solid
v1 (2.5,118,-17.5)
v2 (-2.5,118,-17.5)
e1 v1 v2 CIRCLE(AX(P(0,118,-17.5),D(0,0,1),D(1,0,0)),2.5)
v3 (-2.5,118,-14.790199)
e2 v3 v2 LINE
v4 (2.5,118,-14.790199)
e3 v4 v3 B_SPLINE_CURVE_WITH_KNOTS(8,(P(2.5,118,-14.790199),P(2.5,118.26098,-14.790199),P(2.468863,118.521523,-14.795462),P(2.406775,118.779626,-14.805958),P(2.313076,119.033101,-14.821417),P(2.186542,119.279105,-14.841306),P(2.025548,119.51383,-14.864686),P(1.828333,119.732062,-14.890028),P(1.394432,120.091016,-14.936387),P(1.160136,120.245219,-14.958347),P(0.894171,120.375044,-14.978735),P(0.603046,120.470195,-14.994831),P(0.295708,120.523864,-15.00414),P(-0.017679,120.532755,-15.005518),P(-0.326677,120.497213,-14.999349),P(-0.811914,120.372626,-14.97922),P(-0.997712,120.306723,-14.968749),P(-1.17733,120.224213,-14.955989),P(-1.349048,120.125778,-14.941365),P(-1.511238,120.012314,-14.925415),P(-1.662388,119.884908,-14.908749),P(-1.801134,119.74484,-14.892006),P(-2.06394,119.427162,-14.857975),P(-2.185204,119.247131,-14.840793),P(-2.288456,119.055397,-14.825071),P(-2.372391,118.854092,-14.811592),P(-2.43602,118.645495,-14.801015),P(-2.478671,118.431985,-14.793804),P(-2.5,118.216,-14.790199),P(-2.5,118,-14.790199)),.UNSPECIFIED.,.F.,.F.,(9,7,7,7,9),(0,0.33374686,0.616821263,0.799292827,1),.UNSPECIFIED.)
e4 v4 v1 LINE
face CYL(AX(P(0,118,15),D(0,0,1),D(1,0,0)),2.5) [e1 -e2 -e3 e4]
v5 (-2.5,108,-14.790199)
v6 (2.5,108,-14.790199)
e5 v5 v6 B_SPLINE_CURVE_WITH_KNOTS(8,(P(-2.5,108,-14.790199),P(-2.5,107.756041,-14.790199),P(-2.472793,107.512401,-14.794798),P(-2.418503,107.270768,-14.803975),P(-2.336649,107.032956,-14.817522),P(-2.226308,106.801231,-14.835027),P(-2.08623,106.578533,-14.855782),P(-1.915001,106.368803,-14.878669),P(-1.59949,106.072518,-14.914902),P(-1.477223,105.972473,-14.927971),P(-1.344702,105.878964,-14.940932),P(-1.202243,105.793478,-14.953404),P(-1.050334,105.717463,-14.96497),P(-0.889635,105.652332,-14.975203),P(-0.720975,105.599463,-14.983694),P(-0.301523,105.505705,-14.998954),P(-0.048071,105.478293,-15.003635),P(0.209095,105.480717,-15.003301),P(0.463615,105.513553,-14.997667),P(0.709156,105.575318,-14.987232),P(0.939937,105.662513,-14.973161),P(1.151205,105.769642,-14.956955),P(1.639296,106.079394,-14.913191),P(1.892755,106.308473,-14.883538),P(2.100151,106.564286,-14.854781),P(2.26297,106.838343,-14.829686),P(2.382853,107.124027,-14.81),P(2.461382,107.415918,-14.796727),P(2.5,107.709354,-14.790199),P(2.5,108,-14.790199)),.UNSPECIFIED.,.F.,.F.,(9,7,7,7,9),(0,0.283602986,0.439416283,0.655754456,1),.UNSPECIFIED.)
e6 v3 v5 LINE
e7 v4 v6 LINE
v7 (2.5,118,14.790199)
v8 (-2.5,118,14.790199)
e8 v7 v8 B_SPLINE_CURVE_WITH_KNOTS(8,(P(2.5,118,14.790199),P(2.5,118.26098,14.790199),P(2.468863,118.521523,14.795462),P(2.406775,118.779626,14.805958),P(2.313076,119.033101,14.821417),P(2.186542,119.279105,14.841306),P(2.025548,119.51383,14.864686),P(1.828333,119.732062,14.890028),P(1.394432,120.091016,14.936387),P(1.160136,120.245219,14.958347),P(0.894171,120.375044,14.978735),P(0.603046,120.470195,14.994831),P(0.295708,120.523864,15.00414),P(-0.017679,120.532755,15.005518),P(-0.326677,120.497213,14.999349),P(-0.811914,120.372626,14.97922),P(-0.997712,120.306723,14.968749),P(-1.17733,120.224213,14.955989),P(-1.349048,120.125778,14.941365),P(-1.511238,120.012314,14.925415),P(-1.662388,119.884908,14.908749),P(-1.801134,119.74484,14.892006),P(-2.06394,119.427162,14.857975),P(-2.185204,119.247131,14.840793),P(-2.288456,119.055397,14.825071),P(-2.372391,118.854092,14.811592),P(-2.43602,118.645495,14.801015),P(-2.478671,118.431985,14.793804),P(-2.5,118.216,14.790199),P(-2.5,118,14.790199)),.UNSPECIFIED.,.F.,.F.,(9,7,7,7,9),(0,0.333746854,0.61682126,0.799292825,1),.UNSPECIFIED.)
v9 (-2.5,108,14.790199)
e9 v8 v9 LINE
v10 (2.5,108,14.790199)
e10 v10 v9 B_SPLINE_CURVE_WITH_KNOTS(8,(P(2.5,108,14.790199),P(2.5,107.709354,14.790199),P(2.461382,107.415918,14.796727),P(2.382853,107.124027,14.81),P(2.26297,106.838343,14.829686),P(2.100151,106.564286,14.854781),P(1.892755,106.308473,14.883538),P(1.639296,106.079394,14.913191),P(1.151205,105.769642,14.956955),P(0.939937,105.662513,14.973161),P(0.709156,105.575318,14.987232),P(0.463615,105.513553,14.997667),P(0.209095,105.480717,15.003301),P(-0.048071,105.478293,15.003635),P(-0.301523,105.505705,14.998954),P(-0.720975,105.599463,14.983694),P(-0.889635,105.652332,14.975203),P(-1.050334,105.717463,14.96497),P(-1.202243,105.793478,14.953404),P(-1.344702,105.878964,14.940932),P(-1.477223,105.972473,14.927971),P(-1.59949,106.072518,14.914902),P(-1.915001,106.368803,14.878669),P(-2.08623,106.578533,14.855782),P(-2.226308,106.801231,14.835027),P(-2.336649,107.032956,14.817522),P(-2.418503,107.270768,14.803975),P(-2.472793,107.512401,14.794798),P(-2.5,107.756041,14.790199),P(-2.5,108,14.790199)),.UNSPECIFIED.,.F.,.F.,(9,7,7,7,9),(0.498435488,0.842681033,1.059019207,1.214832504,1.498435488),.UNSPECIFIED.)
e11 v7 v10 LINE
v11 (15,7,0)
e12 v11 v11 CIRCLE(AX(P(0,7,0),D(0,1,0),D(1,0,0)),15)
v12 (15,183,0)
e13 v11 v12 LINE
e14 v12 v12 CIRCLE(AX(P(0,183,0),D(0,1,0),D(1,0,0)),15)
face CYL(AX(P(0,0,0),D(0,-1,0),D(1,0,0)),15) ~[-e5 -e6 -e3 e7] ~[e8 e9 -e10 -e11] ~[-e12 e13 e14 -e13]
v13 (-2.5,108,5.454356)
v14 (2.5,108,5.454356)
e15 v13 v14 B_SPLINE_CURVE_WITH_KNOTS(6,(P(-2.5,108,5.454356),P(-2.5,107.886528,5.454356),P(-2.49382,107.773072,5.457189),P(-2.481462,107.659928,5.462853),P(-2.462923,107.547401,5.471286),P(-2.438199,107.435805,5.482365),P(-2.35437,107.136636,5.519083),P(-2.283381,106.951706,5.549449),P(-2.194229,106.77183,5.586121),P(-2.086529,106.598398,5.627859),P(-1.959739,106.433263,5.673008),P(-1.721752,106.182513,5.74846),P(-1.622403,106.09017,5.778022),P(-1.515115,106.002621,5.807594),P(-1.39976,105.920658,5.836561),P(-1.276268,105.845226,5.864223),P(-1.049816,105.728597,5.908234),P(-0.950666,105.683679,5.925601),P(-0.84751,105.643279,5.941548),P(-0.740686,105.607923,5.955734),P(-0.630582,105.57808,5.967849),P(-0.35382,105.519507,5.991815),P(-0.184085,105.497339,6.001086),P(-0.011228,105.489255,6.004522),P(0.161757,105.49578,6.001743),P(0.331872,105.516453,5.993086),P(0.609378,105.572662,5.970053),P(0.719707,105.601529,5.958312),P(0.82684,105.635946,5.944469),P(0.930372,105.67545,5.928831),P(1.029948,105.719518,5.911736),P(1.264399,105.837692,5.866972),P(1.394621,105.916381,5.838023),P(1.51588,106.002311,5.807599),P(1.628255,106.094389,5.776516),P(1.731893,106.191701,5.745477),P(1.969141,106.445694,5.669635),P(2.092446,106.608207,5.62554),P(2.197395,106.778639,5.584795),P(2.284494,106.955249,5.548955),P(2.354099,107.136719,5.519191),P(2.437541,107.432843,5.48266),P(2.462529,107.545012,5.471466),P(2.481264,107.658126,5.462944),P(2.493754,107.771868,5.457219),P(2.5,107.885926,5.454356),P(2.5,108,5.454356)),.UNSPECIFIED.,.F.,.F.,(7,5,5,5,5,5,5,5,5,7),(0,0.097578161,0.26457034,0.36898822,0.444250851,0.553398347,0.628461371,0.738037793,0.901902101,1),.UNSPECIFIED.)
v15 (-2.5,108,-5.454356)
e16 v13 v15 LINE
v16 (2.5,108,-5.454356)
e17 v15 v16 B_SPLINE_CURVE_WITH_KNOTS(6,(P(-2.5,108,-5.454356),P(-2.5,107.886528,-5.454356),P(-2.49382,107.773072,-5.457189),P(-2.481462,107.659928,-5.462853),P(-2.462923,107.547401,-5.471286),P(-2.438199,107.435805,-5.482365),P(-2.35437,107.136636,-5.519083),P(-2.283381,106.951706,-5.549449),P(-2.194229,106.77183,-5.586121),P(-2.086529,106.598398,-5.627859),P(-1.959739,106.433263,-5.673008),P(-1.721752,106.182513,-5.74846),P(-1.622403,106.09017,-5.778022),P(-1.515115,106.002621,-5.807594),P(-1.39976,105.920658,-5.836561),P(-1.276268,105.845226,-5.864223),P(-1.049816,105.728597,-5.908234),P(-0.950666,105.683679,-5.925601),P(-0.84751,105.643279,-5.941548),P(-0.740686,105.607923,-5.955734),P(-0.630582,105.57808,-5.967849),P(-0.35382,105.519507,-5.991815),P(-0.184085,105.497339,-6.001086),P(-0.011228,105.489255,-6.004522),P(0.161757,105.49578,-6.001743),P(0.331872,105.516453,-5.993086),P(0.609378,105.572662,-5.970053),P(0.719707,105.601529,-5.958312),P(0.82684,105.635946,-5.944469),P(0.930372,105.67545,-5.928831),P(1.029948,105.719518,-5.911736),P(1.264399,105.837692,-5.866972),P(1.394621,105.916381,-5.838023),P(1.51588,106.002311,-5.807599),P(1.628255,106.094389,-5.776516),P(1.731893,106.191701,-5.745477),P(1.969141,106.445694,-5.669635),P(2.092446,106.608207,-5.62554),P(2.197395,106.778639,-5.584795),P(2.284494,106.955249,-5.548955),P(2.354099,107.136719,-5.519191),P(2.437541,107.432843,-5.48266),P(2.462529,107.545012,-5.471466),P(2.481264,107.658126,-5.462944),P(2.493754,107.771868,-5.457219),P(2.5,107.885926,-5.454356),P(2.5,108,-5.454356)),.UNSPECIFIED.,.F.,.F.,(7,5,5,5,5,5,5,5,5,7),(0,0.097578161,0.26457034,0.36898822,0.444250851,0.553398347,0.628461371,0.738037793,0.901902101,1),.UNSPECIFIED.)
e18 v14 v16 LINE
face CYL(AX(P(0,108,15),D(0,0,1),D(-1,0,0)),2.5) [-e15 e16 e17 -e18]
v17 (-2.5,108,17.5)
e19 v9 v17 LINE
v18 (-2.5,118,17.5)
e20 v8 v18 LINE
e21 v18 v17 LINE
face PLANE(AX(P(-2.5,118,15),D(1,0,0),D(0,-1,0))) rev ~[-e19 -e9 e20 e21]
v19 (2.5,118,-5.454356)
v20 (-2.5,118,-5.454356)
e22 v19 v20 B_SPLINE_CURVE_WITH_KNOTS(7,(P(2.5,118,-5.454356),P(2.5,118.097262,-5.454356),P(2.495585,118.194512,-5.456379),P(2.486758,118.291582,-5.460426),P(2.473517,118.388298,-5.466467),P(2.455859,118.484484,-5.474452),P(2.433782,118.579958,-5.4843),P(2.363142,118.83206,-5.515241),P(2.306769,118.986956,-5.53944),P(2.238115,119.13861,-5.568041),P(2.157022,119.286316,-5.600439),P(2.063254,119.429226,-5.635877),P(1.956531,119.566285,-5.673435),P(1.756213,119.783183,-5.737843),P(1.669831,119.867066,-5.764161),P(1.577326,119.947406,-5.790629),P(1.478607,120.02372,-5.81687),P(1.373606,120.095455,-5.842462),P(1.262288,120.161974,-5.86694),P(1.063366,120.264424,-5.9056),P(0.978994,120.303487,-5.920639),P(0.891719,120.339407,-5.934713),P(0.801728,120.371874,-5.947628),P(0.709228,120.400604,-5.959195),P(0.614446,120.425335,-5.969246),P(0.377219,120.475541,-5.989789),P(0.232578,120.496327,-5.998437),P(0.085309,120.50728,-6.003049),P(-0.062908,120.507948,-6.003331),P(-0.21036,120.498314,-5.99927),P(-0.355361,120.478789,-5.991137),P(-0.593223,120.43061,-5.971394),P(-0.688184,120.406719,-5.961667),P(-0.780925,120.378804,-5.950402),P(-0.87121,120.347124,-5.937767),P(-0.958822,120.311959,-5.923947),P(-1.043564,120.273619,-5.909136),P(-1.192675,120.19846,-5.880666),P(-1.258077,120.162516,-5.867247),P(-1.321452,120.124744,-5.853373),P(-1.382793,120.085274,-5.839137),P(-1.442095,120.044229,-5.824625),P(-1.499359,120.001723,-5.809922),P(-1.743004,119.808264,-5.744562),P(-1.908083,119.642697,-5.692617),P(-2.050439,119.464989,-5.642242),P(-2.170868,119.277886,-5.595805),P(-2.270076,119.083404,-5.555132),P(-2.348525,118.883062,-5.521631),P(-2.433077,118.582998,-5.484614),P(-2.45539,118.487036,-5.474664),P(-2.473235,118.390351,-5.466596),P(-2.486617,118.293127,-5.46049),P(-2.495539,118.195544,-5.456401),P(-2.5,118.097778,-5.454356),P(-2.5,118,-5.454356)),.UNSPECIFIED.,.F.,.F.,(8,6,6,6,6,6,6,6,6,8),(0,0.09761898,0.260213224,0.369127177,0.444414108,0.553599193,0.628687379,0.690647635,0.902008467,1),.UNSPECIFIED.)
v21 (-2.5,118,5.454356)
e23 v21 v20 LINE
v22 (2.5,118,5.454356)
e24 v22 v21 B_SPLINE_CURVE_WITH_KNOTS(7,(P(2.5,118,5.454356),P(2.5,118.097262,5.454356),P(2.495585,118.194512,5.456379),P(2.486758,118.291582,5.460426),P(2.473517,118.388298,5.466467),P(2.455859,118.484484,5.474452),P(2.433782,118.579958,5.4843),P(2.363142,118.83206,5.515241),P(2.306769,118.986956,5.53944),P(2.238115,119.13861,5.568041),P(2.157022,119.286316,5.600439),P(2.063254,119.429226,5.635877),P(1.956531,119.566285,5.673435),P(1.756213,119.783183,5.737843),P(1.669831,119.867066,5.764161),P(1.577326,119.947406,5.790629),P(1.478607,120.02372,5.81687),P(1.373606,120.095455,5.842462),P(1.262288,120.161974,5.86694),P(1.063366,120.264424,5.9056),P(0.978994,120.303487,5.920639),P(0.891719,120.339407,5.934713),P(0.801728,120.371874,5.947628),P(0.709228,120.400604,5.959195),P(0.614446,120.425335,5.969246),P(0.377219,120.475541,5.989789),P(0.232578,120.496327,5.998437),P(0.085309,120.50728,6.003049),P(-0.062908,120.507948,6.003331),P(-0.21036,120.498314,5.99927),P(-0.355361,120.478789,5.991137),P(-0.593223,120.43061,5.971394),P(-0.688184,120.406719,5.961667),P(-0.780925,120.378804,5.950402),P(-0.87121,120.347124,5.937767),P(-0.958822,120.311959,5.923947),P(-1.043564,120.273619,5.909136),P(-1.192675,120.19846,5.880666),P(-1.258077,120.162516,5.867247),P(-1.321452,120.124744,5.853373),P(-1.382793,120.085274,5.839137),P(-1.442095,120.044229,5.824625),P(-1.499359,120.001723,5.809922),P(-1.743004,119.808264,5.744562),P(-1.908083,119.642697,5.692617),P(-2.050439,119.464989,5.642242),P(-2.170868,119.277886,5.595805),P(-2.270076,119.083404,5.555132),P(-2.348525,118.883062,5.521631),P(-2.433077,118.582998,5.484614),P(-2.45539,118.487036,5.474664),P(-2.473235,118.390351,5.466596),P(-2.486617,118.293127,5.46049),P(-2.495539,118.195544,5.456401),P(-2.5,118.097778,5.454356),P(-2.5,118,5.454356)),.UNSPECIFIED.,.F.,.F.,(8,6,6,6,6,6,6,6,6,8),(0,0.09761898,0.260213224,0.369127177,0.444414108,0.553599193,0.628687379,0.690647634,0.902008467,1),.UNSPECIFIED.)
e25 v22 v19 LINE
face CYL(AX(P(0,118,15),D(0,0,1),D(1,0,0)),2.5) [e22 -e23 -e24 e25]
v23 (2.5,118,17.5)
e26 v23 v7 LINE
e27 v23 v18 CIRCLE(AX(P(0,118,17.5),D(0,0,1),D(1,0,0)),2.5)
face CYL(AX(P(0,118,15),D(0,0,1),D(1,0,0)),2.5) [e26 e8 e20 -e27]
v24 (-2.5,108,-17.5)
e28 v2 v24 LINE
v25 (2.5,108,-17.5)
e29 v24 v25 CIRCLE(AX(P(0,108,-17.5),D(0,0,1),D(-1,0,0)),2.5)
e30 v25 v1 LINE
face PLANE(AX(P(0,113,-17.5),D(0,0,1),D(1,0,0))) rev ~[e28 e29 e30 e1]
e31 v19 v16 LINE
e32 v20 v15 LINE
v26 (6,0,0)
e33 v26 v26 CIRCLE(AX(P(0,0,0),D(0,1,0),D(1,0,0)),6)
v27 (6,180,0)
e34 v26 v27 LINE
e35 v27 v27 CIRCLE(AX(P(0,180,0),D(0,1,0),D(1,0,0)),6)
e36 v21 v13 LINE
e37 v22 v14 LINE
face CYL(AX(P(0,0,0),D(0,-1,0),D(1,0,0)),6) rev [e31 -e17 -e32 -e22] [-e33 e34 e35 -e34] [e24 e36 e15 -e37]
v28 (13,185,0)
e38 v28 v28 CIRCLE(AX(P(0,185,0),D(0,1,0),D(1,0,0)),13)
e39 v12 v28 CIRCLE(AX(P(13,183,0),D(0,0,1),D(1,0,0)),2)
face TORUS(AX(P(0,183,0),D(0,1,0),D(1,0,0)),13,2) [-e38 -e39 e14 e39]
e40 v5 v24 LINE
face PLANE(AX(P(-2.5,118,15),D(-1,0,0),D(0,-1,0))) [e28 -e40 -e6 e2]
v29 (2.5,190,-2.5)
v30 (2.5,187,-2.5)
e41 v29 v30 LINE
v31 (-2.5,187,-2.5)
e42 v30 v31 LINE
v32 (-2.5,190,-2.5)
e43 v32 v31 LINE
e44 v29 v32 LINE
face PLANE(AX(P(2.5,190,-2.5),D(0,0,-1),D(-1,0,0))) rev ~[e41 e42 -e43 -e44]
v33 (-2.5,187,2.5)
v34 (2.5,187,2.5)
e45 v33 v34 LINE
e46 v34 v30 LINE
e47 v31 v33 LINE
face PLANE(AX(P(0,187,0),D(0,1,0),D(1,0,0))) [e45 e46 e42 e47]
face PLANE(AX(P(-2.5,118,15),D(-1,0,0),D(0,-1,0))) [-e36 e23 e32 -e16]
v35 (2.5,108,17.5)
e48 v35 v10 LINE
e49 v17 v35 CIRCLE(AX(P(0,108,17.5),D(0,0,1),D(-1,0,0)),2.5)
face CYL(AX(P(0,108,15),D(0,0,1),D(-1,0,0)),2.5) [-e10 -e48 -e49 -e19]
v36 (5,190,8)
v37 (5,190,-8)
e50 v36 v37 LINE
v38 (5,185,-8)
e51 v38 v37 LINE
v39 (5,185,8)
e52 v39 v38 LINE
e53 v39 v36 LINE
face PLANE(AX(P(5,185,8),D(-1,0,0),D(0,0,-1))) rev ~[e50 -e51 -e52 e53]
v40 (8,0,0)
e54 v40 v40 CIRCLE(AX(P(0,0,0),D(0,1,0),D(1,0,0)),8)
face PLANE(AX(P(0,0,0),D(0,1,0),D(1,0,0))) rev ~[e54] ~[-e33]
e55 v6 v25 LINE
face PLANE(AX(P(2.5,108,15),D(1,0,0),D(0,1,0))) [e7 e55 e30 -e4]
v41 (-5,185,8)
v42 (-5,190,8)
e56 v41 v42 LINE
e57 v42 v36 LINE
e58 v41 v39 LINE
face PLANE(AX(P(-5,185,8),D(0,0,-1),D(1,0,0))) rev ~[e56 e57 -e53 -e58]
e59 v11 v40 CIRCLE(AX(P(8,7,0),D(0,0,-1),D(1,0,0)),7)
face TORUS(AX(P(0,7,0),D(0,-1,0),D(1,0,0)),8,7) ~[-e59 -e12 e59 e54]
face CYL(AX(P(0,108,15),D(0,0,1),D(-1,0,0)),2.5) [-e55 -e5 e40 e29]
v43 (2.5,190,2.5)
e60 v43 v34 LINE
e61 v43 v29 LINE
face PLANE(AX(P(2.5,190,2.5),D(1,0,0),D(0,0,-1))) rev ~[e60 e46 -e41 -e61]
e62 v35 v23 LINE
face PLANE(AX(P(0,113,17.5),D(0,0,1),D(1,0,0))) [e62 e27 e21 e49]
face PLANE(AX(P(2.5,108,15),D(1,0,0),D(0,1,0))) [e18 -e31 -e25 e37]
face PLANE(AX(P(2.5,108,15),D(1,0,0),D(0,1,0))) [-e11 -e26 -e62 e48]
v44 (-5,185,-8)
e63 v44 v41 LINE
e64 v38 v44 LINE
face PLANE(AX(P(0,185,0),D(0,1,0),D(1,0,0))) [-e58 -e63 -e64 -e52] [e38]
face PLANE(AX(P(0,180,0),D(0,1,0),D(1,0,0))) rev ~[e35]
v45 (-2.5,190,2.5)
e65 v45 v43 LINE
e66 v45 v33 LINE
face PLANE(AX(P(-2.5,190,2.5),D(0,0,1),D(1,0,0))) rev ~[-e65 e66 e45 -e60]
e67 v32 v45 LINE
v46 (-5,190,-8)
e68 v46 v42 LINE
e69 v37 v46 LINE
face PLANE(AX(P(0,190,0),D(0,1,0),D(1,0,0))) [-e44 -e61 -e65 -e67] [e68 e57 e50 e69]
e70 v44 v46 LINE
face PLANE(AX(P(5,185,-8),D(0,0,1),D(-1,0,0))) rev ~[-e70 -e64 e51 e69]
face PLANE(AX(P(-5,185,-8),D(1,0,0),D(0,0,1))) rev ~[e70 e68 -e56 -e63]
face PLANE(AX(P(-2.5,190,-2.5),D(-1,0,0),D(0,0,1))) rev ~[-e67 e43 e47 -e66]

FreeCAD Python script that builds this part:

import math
import FreeCAD as App
import Part
import Sketcher
Q = App.Units.Quantity


def edges_at(feature, points):
    """Names of the edges that pass closest to the given points."""
    edges = feature.Shape.Edges
    near = lambda p: min(range(len(edges)), key=lambda i: edges[i].distToShape(Part.Vertex(*p))[0])
    return sorted({f"Edge{near(p) + 1}" for p in points})


def add_polygon(sketch, points):
    """Adds a closed chain of lines whose ends are joined by coincident constraints."""
    first, n = sketch.GeometryCount, len(points)
    for a, b in zip(points, points[1:] + points[:1]):
        sketch.addGeometry(Part.LineSegment(App.Vector(*a, 0), App.Vector(*b, 0)), False)
    for i in range(n):
        sketch.addConstraint(Sketcher.Constraint("Coincident", first + i, 2, first + (i + 1) % n, 1))

doc = App.newDocument("Part")
body = doc.addObject("PartDesign::Body", "Body")

# Sketch on XZ plane
sketch1 = doc.addObject("Sketcher::SketchObject", "Sketch")
body.addObject(sketch1)
sketch1.AttachmentSupport = (doc.XZ_Plane, [""])
sketch1.MapMode = "FlatFace"
sketch1.addGeometry(Part.Circle(App.Vector(0, 0, 0), App.Vector(0, 0, 1), 15), False)
sketch1.addConstraint([
    Sketcher.Constraint("Coincident", 0, 3, -1, 1),
    Sketcher.Constraint("Diameter", 0, Q("30 mm")),
])
pad1 = doc.addObject("PartDesign::Pad", "Pad")
body.addObject(pad1)
pad1.Profile = sketch1
pad1.Length = 185
pad1.Reversed = True
doc.recompute()

fillet = doc.addObject("PartDesign::Fillet", "Fillet")
body.addObject(fillet)
fillet.Base = (pad1, edges_at(pad1, [(-15, 0, 0)]))
fillet.Radius = 7
doc.recompute()

fillet2 = doc.addObject("PartDesign::Fillet", "Fillet001")
body.addObject(fillet2)
fillet2.Base = (fillet, edges_at(fillet, [(-15, 185, 0)]))
fillet2.Radius = 2

# Sketch on XZ plane
sketch2 = doc.addObject("Sketcher::SketchObject", "Sketch001")
body.addObject(sketch2)
sketch2.AttachmentSupport = (doc.XZ_Plane, [""])
sketch2.MapMode = "FlatFace"
sketch2.addGeometry(Part.Circle(App.Vector(0, 0, 0), App.Vector(0, 0, 1), 6), False)
sketch2.addConstraint([
    Sketcher.Constraint("Coincident", 0, 3, -1, 1),
    Sketcher.Constraint("Diameter", 0, Q("12 mm")),
])
pocket1 = doc.addObject("PartDesign::Pocket", "Pocket")
body.addObject(pocket1)
pocket1.Profile = sketch2
pocket1.Length = 180

# Sketch on XY plane
sketch3 = doc.addObject("Sketcher::SketchObject", "Sketch002")
body.addObject(sketch3)
sketch3.AttachmentSupport = (doc.XY_Plane, [""])
sketch3.MapMode = "FlatFace"
sketch3.AttachmentOffset = App.Placement(App.Vector(0, 0, 15), App.Rotation())
sketch3.addGeometry([
    Part.ArcOfCircle(Part.Circle(App.Vector(0, 118, 0), App.Vector(0, 0, 1), 2.5), math.radians(0), math.radians(180)),
    Part.LineSegment(App.Vector(-2.5, 118, 0), App.Vector(-2.5, 108, 0)),
    Part.ArcOfCircle(Part.Circle(App.Vector(0, 108, 0), App.Vector(0, 0, 1), 2.5), math.radians(180), math.radians(360)),
    Part.LineSegment(App.Vector(2.5, 108, 0), App.Vector(2.5, 118, 0)),
], False)
sketch3.addConstraint([
    Sketcher.Constraint("Tangent", 0, 2, 1, 1),
    Sketcher.Constraint("Tangent", 1, 2, 2, 1),
    Sketcher.Constraint("Tangent", 2, 2, 3, 1),
    Sketcher.Constraint("Tangent", 3, 2, 0, 1),
    Sketcher.Constraint("Vertical", 1),
    Sketcher.Constraint("Vertical", 3),
    Sketcher.Constraint("PointOnObject", 0, 3, -2),
    Sketcher.Constraint("Radius", 0, Q("2.5 mm")),
    Sketcher.Constraint("DistanceY", 1, 2, 1, 1, Q("10 mm")),
    Sketcher.Constraint("DistanceY", -1, 1, 0, 3, Q("118 mm")),
])
pad2 = doc.addObject("PartDesign::Pad", "Pad001")
body.addObject(pad2)
pad2.Profile = sketch3
pad2.Type = "TwoLengths"
pad2.Length = 2.5
pad2.Length2 = 32.5

# Sketch on XZ plane
sketch4 = doc.addObject("Sketcher::SketchObject", "Sketch003")
body.addObject(sketch4)
sketch4.AttachmentSupport = (doc.XZ_Plane, [""])
sketch4.MapMode = "FlatFace"
sketch4.AttachmentOffset = App.Placement(App.Vector(0, 0, -185), App.Rotation())
add_polygon(sketch4, [(-5, -8), (-5, 8), (5, 8), (5, -8)])  # lines 0-3
sketch4.addConstraint([
    Sketcher.Constraint("Vertical", 0),
    Sketcher.Constraint("Horizontal", 1),
    Sketcher.Constraint("Vertical", 2),
    Sketcher.Constraint("Horizontal", 3),
    Sketcher.Constraint("Symmetric", 0, 2, 2, 2, -1, 1),
    Sketcher.Constraint("DistanceX", 1, 1, 1, 2, Q("10 mm")),
    Sketcher.Constraint("DistanceY", 0, 1, 0, 2, Q("16 mm")),
])
pad3 = doc.addObject("PartDesign::Pad", "Pad002")
body.addObject(pad3)
pad3.Profile = sketch4
pad3.Length = 5
pad3.Reversed = True

# Sketch on XZ plane
sketch5 = doc.addObject("Sketcher::SketchObject", "Sketch004")
body.addObject(sketch5)
sketch5.AttachmentSupport = (doc.XZ_Plane, [""])
sketch5.MapMode = "FlatFace"
sketch5.AttachmentOffset = App.Placement(App.Vector(0, 0, -190), App.Rotation())
add_polygon(sketch5, [(2, 2), (2, -2), (-2, -2), (-2, 2)])  # lines 0-3
sketch5.addConstraint([
    Sketcher.Constraint("Vertical", 0),
    Sketcher.Constraint("Horizontal", 1),
    Sketcher.Constraint("Vertical", 2),
    Sketcher.Constraint("Horizontal", 3),
    Sketcher.Constraint("Symmetric", 0, 2, 2, 2, -1, 1),
    Sketcher.Constraint("Equal", 3, 0),
    Sketcher.Constraint("DistanceX", 1, 2, 1, 1, Q("5 mm")),
])
pocket2 = doc.addObject("PartDesign::Pocket", "Pocket001")
body.addObject(pocket2)
pocket2.Profile = sketch5
pocket2.Length = 3
pocket2.Reversed = True

doc.recompute()
